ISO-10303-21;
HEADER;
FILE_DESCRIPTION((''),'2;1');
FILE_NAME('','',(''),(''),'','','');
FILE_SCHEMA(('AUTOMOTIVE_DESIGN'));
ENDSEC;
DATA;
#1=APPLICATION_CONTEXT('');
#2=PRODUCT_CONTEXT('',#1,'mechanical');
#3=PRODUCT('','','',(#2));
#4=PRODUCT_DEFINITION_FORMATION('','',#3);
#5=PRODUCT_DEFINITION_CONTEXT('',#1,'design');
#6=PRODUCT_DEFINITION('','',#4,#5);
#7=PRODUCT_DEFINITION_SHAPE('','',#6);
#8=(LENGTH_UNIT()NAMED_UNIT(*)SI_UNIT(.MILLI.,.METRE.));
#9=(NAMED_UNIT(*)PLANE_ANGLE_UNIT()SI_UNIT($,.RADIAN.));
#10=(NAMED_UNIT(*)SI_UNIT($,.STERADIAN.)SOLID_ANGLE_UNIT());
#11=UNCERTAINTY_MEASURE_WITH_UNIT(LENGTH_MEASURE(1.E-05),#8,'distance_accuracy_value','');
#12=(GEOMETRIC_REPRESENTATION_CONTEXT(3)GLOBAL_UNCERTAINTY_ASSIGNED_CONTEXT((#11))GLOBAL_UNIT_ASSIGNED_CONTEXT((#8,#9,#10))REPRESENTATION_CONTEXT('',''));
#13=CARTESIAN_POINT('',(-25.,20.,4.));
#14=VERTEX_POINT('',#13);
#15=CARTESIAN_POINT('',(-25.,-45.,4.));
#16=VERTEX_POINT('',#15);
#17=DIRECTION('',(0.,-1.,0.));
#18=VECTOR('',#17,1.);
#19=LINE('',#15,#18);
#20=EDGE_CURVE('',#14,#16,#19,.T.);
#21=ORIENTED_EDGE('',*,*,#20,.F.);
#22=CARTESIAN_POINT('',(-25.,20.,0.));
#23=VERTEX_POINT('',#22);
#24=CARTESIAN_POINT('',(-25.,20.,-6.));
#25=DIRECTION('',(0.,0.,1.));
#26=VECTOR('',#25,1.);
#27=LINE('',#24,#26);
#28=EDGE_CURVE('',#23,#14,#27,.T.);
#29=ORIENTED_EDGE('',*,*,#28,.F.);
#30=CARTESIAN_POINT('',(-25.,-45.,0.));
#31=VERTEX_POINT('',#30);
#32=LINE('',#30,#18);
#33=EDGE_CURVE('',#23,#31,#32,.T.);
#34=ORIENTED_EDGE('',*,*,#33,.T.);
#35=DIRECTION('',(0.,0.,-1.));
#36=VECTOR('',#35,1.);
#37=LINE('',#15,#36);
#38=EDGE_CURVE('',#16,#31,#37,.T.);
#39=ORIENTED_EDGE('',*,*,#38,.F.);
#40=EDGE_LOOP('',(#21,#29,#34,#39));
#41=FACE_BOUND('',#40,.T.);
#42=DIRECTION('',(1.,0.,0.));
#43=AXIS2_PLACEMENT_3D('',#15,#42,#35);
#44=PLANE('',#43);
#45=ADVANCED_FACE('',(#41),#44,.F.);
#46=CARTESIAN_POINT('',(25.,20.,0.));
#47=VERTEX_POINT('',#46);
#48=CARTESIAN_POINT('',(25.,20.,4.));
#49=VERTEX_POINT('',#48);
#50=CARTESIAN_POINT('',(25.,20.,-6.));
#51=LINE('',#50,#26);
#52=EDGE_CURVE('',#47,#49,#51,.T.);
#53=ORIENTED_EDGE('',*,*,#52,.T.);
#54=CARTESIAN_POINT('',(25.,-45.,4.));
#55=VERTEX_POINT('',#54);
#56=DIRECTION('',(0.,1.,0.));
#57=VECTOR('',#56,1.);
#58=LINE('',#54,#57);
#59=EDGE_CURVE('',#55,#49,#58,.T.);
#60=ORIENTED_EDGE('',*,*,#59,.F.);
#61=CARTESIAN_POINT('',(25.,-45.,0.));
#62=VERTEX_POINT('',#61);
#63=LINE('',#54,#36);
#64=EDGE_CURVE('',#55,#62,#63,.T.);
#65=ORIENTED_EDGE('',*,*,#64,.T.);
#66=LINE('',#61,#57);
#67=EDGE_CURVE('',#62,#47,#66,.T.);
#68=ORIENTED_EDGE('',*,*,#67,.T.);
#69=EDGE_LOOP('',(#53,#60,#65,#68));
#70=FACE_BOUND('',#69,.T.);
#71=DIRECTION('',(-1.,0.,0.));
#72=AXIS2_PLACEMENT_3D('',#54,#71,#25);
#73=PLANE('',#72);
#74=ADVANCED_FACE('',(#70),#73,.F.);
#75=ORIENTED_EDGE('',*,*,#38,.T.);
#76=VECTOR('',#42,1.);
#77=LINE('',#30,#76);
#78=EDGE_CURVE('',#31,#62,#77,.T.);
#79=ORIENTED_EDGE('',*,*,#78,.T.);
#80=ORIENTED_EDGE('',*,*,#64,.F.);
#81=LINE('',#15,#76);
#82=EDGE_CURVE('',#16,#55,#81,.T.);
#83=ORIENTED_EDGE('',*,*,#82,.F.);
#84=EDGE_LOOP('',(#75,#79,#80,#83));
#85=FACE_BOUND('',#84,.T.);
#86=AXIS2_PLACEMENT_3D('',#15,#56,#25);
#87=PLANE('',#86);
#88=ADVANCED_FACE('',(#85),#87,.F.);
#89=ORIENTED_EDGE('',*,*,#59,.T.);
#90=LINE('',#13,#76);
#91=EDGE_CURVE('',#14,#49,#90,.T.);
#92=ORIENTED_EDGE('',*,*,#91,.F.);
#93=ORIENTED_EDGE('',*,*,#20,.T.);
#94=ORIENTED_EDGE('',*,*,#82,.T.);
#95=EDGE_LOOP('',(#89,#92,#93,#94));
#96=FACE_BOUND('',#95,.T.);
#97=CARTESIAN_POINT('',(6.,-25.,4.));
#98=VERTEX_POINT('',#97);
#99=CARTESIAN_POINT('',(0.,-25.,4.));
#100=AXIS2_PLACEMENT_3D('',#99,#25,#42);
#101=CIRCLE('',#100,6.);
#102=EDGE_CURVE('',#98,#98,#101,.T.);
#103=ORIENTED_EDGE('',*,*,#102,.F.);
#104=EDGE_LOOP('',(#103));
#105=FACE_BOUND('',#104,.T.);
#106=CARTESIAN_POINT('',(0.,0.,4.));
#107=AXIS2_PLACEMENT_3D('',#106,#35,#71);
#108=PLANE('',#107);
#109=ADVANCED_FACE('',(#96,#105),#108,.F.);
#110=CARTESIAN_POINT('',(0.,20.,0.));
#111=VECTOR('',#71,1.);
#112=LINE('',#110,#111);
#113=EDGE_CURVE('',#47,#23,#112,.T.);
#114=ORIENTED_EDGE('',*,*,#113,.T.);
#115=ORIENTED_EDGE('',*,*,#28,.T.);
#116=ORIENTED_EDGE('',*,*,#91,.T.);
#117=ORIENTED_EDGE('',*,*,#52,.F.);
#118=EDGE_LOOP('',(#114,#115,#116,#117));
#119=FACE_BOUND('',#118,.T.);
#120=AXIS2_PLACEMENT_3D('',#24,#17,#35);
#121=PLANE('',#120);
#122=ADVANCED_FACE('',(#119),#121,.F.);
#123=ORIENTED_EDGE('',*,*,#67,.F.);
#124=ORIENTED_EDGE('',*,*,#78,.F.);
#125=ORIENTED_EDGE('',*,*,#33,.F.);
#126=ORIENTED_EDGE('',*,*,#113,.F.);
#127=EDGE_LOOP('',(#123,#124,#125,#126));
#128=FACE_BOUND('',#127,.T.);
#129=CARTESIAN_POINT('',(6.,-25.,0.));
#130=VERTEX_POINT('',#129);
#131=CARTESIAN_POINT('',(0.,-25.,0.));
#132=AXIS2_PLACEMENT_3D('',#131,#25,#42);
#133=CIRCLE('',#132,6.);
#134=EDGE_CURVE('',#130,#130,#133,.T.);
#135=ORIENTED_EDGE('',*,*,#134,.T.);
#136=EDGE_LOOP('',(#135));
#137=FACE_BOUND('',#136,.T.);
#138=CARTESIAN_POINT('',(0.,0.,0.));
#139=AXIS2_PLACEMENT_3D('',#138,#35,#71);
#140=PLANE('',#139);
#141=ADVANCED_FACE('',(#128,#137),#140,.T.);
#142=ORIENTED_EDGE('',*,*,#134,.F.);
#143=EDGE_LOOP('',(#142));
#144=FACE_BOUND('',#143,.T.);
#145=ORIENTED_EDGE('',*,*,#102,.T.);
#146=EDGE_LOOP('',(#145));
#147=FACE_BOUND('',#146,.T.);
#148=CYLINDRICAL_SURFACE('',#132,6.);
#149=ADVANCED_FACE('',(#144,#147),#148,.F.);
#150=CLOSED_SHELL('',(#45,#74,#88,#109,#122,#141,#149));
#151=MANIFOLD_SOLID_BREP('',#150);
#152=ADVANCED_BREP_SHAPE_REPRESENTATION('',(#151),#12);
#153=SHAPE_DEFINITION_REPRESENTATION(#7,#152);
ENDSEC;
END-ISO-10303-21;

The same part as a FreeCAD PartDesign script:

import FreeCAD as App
import Part
import Sketcher

V = App.Vector


def add_polygon(sketch, points):
    """Adds a closed chain of lines whose ends are joined by coincident constraints."""
    first, n = sketch.GeometryCount, len(points)
    for a, b in zip(points, points[1:] + points[:1]):
        sketch.addGeometry(Part.LineSegment(App.Vector(*a, 0), App.Vector(*b, 0)), False)
    for i in range(n):
        sketch.addConstraint(Sketcher.Constraint("Coincident", first + i, 2, first + (i + 1) % n, 1))

doc = App.newDocument("Part")
params = doc.addObject("Spreadsheet::Sheet", "Params")
for row, (alias, value) in enumerate([
    ("sketch1_width", "50 mm"),
    ("sketch1_height", "90 mm"),
    ("pad1_length", "4 mm"),
    ("sketch2_diameter", "12 mm"),
    ("pocket1_length", "4 mm"),
    ("sketch3_width", "50 mm"),
    ("sketch3_height", "25 mm"),
    ("pocket2_length", "10 mm"),
], start=1):
    params.set(f"A{row}", alias)
    params.set(f"B{row}", "=" + value)
    params.setAlias(f"B{row}", alias)

body = doc.addObject("PartDesign::Body", "Body")

sketch1 = body.newObject("Sketcher::SketchObject", "Sketch")
sketch1.AttachmentSupport = (doc.getObject("XY_Plane"), [""])
sketch1.MapMode = "FlatFace"
add_polygon(sketch1, [(-25, 45), (-25, -45), (25, -45), (25, 45)])
sketch1.addConstraint([
    Sketcher.Constraint("Vertical", 0),
    Sketcher.Constraint("Horizontal", 1),
    Sketcher.Constraint("Vertical", 2),
    Sketcher.Constraint("Horizontal", 3),
    Sketcher.Constraint("Symmetric", 0, 2, 2, 2, -1, 1),
    Sketcher.Constraint("DistanceX", 1, 1, 1, 2, 50.0),
    Sketcher.Constraint("DistanceY", 0, 2, 0, 1, 90.0),
])
sketch1.setExpression("Constraints[9]", "Params.sketch1_width")
sketch1.setExpression("Constraints[10]", "Params.sketch1_height")
pad1 = body.newObject("PartDesign::Pad", "Pad")
pad1.Profile = sketch1
pad1.setExpression("Length", "Params.pad1_length")

sketch2 = body.newObject("Sketcher::SketchObject", "Sketch001")
sketch2.AttachmentSupport = (doc.getObject("XY_Plane"), [""])
sketch2.MapMode = "FlatFace"
sketch2.AttachmentOffset = App.Placement(V(0, 0, 4), App.Rotation())
sketch2.addGeometry(Part.Circle(V(0, -25, 0), V(0, 0, 1), 6), False)
sketch2.addConstraint([
    Sketcher.Constraint("PointOnObject", 0, 3, -2),
    Sketcher.Constraint("Diameter", 0, 12.0),
    Sketcher.Constraint("DistanceY", 0, 3, -1, 1, 25.0),
])
sketch2.setExpression("Constraints[1]", "Params.sketch2_diameter")
pocket1 = body.newObject("PartDesign::Pocket", "Pocket")
pocket1.Profile = sketch2
pocket1.setExpression("Length", "Params.pocket1_length")

sketch3 = body.newObject("Sketcher::SketchObject", "Sketch002")
sketch3.AttachmentSupport = (doc.getObject("XY_Plane"), [""])
sketch3.MapMode = "FlatFace"
sketch3.AttachmentOffset = App.Placement(V(0, 0, 4), App.Rotation())
add_polygon(sketch3, [(-25, 45), (-25, 20), (25, 20), (25, 45)])
sketch3.addConstraint([
    Sketcher.Constraint("Vertical", 0),
    Sketcher.Constraint("Horizontal", 1),
    Sketcher.Constraint("Vertical", 2),
    Sketcher.Constraint("Horizontal", 3),
    Sketcher.Constraint("DistanceX", 1, 1, 1, 2, 50.0),
    Sketcher.Constraint("DistanceY", 0, 2, 0, 1, 25.0),
    Sketcher.Constraint("DistanceX", 0, 2, -1, 1, 25.0),
    Sketcher.Constraint("DistanceY", -1, 1, 0, 2, 20.0),
])
sketch3.setExpression("Constraints[8]", "Params.sketch3_width")
sketch3.setExpression("Constraints[9]", "Params.sketch3_height")
pocket2 = body.newObject("PartDesign::Pocket", "Pocket001")
pocket2.Profile = sketch3
pocket2.setExpression("Length", "Params.pocket2_length")

doc.recompute()
